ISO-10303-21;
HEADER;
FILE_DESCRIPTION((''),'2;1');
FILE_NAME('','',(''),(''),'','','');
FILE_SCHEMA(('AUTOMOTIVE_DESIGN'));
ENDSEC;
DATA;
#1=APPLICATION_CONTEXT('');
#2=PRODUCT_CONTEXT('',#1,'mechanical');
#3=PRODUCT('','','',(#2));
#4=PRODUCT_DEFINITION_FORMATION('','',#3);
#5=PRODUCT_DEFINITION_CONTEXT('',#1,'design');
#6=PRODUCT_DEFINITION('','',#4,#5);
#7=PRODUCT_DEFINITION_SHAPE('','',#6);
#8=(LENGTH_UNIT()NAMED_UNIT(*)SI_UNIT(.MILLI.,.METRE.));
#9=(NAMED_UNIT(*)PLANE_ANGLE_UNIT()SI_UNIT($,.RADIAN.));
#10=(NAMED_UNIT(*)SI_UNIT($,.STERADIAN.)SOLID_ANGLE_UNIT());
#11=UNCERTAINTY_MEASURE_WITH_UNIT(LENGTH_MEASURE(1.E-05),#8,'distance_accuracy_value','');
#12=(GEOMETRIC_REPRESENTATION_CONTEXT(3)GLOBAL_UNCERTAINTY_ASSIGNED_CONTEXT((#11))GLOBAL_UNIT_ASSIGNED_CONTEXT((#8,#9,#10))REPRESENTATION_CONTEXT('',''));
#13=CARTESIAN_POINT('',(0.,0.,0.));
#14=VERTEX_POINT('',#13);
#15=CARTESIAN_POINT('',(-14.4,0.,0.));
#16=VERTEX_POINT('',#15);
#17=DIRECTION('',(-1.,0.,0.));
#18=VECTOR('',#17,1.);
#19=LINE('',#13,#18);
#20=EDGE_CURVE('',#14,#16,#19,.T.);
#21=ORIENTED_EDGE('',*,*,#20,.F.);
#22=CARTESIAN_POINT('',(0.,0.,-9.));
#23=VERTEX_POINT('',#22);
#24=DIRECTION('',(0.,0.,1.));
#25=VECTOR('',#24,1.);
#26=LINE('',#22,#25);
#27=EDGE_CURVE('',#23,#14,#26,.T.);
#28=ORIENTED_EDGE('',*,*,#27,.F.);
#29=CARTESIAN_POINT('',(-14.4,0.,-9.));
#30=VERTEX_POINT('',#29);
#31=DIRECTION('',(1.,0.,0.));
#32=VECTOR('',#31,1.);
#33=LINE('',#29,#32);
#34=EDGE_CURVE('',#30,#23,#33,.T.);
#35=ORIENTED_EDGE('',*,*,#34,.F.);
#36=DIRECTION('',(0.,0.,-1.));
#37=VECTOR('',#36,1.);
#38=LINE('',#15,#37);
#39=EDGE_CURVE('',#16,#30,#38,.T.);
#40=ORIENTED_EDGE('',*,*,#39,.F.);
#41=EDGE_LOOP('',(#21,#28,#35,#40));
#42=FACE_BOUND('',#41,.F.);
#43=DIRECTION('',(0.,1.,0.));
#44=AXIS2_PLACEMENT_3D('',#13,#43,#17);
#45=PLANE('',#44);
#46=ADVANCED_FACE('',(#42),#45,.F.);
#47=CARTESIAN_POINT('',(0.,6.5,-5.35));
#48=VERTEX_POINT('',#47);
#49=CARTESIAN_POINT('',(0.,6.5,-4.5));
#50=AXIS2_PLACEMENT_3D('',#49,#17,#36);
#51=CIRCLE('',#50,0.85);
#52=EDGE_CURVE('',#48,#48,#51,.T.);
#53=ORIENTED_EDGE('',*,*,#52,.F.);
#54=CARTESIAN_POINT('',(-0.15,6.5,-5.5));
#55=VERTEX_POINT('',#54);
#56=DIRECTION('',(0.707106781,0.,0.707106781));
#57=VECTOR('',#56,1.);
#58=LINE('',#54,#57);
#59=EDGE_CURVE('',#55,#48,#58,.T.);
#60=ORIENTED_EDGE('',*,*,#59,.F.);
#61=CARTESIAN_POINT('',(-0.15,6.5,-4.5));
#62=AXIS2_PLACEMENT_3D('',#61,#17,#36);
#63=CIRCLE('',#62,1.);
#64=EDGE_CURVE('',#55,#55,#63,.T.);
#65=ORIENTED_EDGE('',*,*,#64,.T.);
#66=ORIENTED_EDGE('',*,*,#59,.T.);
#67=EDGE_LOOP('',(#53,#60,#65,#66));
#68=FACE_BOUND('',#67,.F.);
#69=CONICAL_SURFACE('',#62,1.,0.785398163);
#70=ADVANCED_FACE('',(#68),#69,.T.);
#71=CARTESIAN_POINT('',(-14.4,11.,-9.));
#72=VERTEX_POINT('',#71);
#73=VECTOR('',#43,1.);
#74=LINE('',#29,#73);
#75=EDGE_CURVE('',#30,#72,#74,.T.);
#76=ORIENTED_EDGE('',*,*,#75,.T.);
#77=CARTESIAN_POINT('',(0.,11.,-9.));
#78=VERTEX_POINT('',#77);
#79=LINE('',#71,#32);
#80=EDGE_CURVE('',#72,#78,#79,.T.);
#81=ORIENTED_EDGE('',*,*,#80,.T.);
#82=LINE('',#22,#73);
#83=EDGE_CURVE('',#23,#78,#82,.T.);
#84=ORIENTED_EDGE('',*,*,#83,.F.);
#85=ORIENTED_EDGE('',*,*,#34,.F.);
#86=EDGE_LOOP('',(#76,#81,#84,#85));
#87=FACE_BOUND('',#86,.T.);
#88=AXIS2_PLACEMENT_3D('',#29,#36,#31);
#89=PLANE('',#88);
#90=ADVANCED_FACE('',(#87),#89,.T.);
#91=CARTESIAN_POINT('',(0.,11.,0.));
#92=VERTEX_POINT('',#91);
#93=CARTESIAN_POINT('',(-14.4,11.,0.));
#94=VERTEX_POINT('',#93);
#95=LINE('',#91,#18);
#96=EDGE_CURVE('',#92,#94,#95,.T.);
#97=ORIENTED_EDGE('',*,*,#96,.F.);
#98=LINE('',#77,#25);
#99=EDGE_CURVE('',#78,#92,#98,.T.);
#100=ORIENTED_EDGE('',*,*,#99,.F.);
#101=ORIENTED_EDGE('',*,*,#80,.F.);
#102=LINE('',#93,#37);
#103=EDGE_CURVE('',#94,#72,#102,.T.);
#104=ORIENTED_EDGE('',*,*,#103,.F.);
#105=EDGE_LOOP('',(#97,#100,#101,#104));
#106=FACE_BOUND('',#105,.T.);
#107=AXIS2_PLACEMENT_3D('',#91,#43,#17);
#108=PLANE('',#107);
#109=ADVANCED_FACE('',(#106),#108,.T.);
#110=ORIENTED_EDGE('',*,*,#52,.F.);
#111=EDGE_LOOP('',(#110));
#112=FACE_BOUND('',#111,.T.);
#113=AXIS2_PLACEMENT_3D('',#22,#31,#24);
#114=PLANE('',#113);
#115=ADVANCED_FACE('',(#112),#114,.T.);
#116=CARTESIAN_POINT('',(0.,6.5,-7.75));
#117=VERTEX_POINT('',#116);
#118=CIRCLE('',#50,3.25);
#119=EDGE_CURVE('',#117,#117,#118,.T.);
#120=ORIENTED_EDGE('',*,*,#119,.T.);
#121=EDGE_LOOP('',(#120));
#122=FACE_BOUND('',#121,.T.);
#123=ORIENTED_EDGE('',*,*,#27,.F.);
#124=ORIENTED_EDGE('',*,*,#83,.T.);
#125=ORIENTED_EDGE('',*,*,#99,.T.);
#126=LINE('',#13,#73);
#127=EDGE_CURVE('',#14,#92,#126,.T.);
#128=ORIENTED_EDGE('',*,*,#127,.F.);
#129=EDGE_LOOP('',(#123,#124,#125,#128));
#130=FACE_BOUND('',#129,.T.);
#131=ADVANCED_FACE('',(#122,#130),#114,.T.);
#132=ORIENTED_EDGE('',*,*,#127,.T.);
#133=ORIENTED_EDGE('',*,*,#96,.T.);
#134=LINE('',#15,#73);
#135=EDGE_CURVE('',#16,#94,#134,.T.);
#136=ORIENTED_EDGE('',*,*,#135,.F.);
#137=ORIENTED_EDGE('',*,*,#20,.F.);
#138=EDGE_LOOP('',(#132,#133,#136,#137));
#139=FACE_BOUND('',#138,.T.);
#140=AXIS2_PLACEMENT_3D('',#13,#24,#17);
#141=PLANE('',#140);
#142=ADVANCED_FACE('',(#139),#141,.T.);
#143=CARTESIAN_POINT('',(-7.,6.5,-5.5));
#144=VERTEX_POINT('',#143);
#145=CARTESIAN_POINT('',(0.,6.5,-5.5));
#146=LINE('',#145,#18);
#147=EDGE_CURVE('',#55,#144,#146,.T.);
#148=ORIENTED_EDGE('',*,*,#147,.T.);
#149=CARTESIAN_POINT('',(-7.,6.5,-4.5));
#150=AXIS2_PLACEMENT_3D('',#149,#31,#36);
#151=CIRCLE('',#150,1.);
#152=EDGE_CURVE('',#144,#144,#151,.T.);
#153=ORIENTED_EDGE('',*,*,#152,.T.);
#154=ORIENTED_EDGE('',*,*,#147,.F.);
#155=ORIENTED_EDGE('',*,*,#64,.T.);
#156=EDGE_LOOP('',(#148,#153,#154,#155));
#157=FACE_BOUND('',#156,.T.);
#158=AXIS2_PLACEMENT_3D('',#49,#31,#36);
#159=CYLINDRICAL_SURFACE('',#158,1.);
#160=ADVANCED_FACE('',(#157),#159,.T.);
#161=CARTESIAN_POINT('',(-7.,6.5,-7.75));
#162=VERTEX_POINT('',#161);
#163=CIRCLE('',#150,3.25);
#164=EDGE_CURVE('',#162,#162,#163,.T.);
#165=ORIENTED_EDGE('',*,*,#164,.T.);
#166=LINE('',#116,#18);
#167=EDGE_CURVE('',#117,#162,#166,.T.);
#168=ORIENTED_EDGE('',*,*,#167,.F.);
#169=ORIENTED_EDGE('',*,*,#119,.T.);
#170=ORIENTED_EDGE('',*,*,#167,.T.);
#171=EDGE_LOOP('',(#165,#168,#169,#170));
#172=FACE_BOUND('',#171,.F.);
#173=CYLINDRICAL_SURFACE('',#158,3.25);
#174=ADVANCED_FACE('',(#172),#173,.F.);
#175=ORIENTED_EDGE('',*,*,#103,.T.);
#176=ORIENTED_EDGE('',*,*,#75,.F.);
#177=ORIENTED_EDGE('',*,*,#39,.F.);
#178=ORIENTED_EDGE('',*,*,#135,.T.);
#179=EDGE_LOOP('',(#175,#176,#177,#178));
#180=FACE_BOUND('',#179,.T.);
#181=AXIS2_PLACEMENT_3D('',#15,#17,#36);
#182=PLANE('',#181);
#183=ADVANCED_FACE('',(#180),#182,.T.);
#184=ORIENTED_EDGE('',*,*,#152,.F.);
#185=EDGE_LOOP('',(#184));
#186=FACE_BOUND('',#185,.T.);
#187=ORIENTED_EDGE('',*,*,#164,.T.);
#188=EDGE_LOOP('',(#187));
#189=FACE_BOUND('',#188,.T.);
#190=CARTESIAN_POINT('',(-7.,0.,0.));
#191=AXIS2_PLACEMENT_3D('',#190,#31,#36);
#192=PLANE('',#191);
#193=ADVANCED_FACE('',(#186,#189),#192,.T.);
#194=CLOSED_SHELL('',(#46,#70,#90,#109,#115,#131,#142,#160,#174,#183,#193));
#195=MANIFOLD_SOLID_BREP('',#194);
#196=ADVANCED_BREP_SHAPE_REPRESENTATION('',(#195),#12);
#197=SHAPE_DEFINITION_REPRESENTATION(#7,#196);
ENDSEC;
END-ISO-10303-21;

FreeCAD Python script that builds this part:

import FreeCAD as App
import Part
import Sketcher
Q = App.Units.Quantity


def edges_at(feature, points):
    """Names of the edges that pass closest to the given points."""
    edges = feature.Shape.Edges
    near = lambda p: min(range(len(edges)), key=lambda i: edges[i].distToShape(Part.Vertex(*p))[0])
    return sorted({f"Edge{near(p) + 1}" for p in points})


def add_polygon(sketch, points):
    """Adds a closed chain of lines whose ends are joined by coincident constraints."""
    first, n = sketch.GeometryCount, len(points)
    for a, b in zip(points, points[1:] + points[:1]):
        sketch.addGeometry(Part.LineSegment(App.Vector(*a, 0), App.Vector(*b, 0)), False)
    for i in range(n):
        sketch.addConstraint(Sketcher.Constraint("Coincident", first + i, 2, first + (i + 1) % n, 1))

doc = App.newDocument("Part")
body = doc.addObject("PartDesign::Body", "Body")

sketch1 = body.newObject("Sketcher::SketchObject", "Sketch")
sketch1.AttachmentSupport = (doc.getObject("XZ_Plane"), [""])
sketch1.MapMode = "FlatFace"
add_polygon(sketch1, [(0, -9), (-14, -9), (-14, 0), (0, 0)])
sketch1.addConstraint(Sketcher.Constraint("Horizontal", 0))
sketch1.addConstraint(Sketcher.Constraint("Vertical", 1))
sketch1.addConstraint(Sketcher.Constraint("Horizontal", 2))
sketch1.addConstraint(Sketcher.Constraint("Vertical", 3))
sketch1.addConstraint(Sketcher.Constraint("Coincident", 2, 2, -1, 1))
sketch1.addConstraint(Sketcher.Constraint("DistanceY", 1, 1, 1, 2, Q("9 mm")))
sketch1.addConstraint(Sketcher.Constraint("DistanceX", 0, 2, 0, 1, Q("14.4 mm")))
pad1 = body.newObject("PartDesign::Pad", "Pad")
pad1.Profile = sketch1
pad1.Length = 11
pad1.Reversed = True

sketch2 = body.newObject("Sketcher::SketchObject", "Sketch001")
sketch2.AttachmentSupport = (doc.getObject("YZ_Plane"), [""])
sketch2.MapMode = "FlatFace"
sketch2.addGeometry(Part.Circle(App.Vector(6.5, -4.5, 0), App.Vector(0, 0, 1), 3.2), False)
sketch2.addGeometry(Part.Circle(App.Vector(6.5, -4.5, 0), App.Vector(0, 0, 1), 1), False)
sketch2.addConstraint(Sketcher.Constraint("Coincident", 1, 3, 0, 3))
sketch2.addConstraint(Sketcher.Constraint("Diameter", 1, Q("2 mm")))
sketch2.addConstraint(Sketcher.Constraint("Diameter", 0, Q("6.5 mm")))
sketch2.addConstraint(Sketcher.Constraint("DistanceX", -1, 1, 0, 3, Q("6.5 mm")))
sketch2.addConstraint(Sketcher.Constraint("DistanceY", 0, 3, -1, 1, Q("4.5 mm")))
pocket1 = body.newObject("PartDesign::Pocket", "Pocket")
pocket1.Profile = sketch2
pocket1.Length = 7
doc.recompute()

chamfer = body.newObject("PartDesign::Chamfer", "Chamfer")
chamfer.Base = (pocket1, edges_at(pocket1, [(0, 6.5, -3.5)]))
chamfer.Size = 0.15

doc.recompute()
